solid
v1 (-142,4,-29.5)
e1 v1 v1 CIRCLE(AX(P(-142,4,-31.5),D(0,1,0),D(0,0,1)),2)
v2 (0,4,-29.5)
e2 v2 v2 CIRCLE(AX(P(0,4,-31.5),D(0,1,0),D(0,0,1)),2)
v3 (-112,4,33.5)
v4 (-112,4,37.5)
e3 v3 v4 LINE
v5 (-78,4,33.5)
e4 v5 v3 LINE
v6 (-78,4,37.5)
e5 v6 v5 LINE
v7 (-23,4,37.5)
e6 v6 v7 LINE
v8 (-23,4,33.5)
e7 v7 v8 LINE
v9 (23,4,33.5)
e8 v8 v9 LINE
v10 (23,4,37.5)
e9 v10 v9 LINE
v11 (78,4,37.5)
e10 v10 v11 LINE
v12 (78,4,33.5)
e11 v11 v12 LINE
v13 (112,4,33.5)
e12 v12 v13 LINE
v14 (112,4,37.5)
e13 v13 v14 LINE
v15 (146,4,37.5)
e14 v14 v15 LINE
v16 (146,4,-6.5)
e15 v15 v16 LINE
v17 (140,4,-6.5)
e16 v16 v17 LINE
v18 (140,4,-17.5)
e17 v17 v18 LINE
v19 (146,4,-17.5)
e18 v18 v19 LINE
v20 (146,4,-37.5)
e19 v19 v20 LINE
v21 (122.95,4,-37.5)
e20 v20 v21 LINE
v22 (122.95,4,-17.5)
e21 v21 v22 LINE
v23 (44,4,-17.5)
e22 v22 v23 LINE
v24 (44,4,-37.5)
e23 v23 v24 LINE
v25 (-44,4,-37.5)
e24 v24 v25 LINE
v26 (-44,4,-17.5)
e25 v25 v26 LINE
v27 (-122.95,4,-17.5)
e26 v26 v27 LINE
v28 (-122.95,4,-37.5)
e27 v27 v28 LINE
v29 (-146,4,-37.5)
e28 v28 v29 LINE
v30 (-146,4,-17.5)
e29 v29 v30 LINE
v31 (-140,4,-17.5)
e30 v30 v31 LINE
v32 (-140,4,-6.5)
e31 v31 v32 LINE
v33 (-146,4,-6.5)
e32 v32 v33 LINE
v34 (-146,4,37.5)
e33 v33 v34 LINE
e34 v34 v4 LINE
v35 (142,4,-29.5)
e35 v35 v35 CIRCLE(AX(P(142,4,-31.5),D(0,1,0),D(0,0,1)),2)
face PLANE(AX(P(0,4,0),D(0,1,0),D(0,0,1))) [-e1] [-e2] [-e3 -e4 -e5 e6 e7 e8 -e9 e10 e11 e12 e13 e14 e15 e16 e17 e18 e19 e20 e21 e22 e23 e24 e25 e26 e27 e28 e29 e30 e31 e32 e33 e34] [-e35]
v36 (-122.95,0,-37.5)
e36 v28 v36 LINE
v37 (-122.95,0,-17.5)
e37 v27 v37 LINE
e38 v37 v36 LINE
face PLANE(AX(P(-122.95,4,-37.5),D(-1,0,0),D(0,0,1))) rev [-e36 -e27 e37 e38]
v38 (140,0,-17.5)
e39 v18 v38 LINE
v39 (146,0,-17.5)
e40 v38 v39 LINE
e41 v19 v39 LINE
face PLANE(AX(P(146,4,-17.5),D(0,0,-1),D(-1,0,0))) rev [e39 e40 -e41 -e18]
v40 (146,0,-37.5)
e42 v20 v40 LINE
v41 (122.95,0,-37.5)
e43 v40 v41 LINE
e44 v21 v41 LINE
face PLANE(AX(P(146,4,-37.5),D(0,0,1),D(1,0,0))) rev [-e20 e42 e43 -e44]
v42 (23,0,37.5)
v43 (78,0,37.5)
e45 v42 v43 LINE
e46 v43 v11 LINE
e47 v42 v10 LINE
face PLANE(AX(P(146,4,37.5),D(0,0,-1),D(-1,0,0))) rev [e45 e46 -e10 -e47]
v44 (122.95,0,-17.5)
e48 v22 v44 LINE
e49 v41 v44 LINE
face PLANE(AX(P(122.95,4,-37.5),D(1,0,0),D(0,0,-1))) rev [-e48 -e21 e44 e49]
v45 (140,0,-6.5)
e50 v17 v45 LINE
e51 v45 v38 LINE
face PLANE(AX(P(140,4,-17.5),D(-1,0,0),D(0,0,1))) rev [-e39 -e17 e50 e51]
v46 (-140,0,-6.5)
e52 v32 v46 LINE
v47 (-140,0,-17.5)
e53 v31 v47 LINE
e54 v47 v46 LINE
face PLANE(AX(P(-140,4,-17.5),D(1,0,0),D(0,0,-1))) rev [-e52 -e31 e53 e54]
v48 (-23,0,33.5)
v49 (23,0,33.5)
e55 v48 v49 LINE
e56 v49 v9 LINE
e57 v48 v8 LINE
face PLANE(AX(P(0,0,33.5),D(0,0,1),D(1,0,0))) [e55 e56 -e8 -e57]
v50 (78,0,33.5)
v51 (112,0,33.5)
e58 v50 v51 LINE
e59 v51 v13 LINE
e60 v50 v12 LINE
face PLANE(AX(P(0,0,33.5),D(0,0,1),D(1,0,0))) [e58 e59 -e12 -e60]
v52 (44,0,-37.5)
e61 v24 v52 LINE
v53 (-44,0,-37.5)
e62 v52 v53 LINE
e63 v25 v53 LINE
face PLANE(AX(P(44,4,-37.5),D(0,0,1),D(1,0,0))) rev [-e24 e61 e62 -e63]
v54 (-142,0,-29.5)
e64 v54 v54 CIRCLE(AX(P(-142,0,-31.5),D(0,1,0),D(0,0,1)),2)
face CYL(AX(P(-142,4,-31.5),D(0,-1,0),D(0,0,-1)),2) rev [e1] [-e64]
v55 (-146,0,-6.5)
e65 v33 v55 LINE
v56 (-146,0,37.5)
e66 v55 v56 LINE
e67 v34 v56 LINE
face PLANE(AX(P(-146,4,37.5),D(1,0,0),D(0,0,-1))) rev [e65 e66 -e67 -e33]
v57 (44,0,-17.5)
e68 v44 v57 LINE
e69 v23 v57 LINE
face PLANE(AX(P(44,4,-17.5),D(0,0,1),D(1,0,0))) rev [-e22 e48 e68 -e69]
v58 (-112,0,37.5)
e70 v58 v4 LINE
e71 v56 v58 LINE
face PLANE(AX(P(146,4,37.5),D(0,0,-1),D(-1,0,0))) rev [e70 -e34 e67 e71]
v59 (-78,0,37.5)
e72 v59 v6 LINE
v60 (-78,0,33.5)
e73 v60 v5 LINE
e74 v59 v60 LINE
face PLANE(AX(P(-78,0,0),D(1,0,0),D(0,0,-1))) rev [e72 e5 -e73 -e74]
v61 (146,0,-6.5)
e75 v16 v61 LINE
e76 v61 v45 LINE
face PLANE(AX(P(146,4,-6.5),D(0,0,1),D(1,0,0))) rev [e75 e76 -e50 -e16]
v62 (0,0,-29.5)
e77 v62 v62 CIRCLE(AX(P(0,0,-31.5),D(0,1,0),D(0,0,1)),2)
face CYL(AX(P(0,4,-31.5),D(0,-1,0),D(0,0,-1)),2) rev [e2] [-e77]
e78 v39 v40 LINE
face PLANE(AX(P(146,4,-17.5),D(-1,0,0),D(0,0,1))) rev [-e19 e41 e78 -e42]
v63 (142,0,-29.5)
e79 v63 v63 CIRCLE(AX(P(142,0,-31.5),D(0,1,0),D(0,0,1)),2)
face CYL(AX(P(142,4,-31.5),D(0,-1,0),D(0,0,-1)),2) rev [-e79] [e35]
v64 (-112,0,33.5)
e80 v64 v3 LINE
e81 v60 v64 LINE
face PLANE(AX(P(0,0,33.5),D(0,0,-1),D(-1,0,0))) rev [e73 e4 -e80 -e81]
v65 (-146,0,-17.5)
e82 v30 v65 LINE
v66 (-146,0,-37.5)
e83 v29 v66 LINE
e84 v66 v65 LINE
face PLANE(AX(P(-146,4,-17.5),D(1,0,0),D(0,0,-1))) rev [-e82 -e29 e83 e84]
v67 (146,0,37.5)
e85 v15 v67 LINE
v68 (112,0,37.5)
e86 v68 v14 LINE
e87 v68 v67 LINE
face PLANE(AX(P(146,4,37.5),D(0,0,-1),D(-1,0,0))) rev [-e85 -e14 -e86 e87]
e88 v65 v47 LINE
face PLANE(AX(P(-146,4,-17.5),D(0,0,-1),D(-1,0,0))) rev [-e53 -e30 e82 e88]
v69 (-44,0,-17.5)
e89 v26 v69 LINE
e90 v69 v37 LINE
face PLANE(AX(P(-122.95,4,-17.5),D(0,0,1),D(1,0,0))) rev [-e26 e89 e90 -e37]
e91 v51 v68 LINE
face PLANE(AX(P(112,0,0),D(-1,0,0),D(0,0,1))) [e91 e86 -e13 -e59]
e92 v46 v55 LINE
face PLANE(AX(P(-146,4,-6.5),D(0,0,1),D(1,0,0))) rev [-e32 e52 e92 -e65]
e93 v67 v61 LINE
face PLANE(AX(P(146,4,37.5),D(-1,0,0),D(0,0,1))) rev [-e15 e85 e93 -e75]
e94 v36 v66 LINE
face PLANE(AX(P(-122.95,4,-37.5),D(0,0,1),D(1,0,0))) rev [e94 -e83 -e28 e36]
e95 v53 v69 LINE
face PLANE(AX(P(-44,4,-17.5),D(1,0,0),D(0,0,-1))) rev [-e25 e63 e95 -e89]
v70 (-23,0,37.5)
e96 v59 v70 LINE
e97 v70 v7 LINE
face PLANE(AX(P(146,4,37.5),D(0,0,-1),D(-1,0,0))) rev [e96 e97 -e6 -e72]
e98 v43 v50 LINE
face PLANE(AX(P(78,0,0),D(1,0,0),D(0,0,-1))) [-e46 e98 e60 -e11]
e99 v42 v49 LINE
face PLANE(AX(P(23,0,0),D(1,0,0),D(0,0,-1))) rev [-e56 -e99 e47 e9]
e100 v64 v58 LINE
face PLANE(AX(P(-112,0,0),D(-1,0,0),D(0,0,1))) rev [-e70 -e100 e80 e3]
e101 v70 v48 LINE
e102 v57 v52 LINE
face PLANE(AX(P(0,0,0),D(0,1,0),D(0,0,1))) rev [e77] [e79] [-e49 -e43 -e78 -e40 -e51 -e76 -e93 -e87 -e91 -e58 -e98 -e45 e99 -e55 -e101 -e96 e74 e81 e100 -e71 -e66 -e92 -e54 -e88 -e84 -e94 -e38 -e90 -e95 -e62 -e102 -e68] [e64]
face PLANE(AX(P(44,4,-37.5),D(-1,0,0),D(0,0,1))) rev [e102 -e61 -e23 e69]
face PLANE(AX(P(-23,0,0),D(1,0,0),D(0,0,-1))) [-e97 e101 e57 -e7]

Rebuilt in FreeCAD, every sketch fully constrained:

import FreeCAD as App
import Part
import Sketcher

V = App.Vector

doc = App.newDocument("Part")
body = doc.addObject("PartDesign::Body", "Body")

# Sketch on XZ plane
sketch1 = body.newObject("Sketcher::SketchObject", "Sketch")
sketch1.AttachmentSupport = (doc.getObject("XZ_Plane"), [""])
sketch1.MapMode = "FlatFace"
sketch1.addGeometry([
    Part.LineSegment(V(-146, 37.5, 0), V(146, 37.5, 0)),  # 0
    Part.LineSegment(V(146, 37.5, 0), V(146, -6.5, 0)),  # 1
    Part.LineSegment(V(146, -6.5, 0), V(140, -6.5, 0)),  # 2
    Part.LineSegment(V(140, -6.5, 0), V(140, -17.5, 0)),  # 3
    Part.LineSegment(V(140, -17.5, 0), V(146, -17.5, 0)),  # 4
    Part.LineSegment(V(146, -17.5, 0), V(146, -37.5, 0)),  # 5
    Part.LineSegment(V(146, -37.5, 0), V(123, -37.5, 0)),  # 6
    Part.LineSegment(V(123, -37.5, 0), V(123, -17.5, 0)),  # 7
    Part.LineSegment(V(123, -17.5, 0), V(44, -17.5, 0)),  # 8
    Part.LineSegment(V(44, -17.5, 0), V(44, -37.5, 0)),  # 9
    Part.LineSegment(V(44, -37.5, 0), V(-44, -37.5, 0)),  # 10
    Part.LineSegment(V(-44, -37.5, 0), V(-44, -17.5, 0)),  # 11
    Part.LineSegment(V(-44, -17.5, 0), V(-123, -17.5, 0)),  # 12
    Part.LineSegment(V(-123, -17.5, 0), V(-123, -37.5, 0)),  # 13
    Part.LineSegment(V(-123, -37.5, 0), V(-146, -37.5, 0)),  # 14
    Part.LineSegment(V(-146, -37.5, 0), V(-146, -17.5, 0)),  # 15
    Part.LineSegment(V(-146, -17.5, 0), V(-140, -17.5, 0)),  # 16
    Part.LineSegment(V(-140, -17.5, 0), V(-140, -6.5, 0)),  # 17
    Part.LineSegment(V(-140, -6.5, 0), V(-146, -6.5, 0)),  # 18
    Part.LineSegment(V(-146, -6.5, 0), V(-146, 37.5, 0)),  # 19
    Part.Circle(V(142, -31.5, 0), V(0, 0, 1), 2),  # 20
    Part.Circle(V(0, -31.5, 0), V(0, 0, 1), 2),  # 21
    Part.Circle(V(-142, -31.5, 0), V(0, 0, 1), 2),  # 22
], False)
sketch1.addConstraint([
    Sketcher.Constraint("Coincident", 0, 2, 1, 1),
    Sketcher.Constraint("Coincident", 1, 2, 2, 1),
    Sketcher.Constraint("Coincident", 2, 2, 3, 1),
    Sketcher.Constraint("Coincident", 3, 2, 4, 1),
    Sketcher.Constraint("Coincident", 4, 2, 5, 1),
    Sketcher.Constraint("Coincident", 5, 2, 6, 1),
    Sketcher.Constraint("Coincident", 6, 2, 7, 1),
    Sketcher.Constraint("Coincident", 7, 2, 8, 1),
    Sketcher.Constraint("Coincident", 8, 2, 9, 1),
    Sketcher.Constraint("Coincident", 9, 2, 10, 1),
    Sketcher.Constraint("Coincident", 10, 2, 11, 1),
    Sketcher.Constraint("Coincident", 11, 2, 12, 1),
    Sketcher.Constraint("Coincident", 12, 2, 13, 1),
    Sketcher.Constraint("Coincident", 13, 2, 14, 1),
    Sketcher.Constraint("Coincident", 14, 2, 15, 1),
    Sketcher.Constraint("Coincident", 15, 2, 16, 1),
    Sketcher.Constraint("Coincident", 16, 2, 17, 1),
    Sketcher.Constraint("Coincident", 17, 2, 18, 1),
    Sketcher.Constraint("Coincident", 18, 2, 19, 1),
    Sketcher.Constraint("Coincident", 19, 2, 0, 1),
    Sketcher.Constraint("Horizontal", 0),
    Sketcher.Constraint("Vertical", 1),
    Sketcher.Constraint("Horizontal", 2),
    Sketcher.Constraint("Vertical", 3),
    Sketcher.Constraint("Horizontal", 4),
    Sketcher.Constraint("Vertical", 5),
    Sketcher.Constraint("Horizontal", 6),
    Sketcher.Constraint("Vertical", 7),
    Sketcher.Constraint("Horizontal", 8),
    Sketcher.Constraint("Vertical", 9),
    Sketcher.Constraint("Horizontal", 10),
    Sketcher.Constraint("Vertical", 11),
    Sketcher.Constraint("Horizontal", 12),
    Sketcher.Constraint("Vertical", 13),
    Sketcher.Constraint("Horizontal", 14),
    Sketcher.Constraint("Vertical", 15),
    Sketcher.Constraint("Horizontal", 16),
    Sketcher.Constraint("Vertical", 17),
    Sketcher.Constraint("Horizontal", 18),
    Sketcher.Constraint("Vertical", 19),
    Sketcher.Constraint("Equal", 20, 21),
    Sketcher.Constraint("Equal", 21, 22),
    Sketcher.Constraint("Symmetric", 0, 2, 14, 2, -1, 1),
    Sketcher.Constraint("Symmetric", 5, 2, 19, 2, -1, 1),
    Sketcher.Constraint("Symmetric", 20, 3, 22, 3, -2),
    Sketcher.Constraint("Symmetric", 8, 2, 11, 2, -2),
    Sketcher.Constraint("Symmetric", 4, 2, 15, 2, -2),
    Sketcher.Constraint("Symmetric", 2, 2, 17, 2, -2),
    Sketcher.Constraint("PointOnObject", 21, 3, -2),
    Sketcher.Constraint("Horizontal", 20, 3, 21, 3),
    Sketcher.Constraint("Horizontal", 4, 2, 7, 2),
    Sketcher.Constraint("Horizontal", 6, 2, 9, 2),
    Sketcher.Constraint("Equal", 8, 12),
    Sketcher.Constraint("Diameter", 20, 4.0),
    Sketcher.Constraint("DistanceX", 0, 1, 0, 2, 292.0),
    Sketcher.Constraint("DistanceX", 2, 2, 2, 1, 6.0),
    Sketcher.Constraint("DistanceX", 10, 2, 10, 1, 88.0),
    Sketcher.Constraint("DistanceY", 1, 2, 1, 1, 44.0),
    Sketcher.Constraint("DistanceY", 3, 2, 3, 1, 11.0),
    Sketcher.Constraint("DistanceY", 5, 2, 5, 1, 20.0),
    Sketcher.Constraint("DistanceX", -1, 1, 20, 3, 142.0),
    Sketcher.Constraint("DistanceY", 20, 3, 0, 2, 69.0),
    Sketcher.Constraint("DistanceX", 6, 2, 6, 1, 23.05),
])
pad1 = body.newObject("PartDesign::Pad", "Pad")
pad1.Profile = sketch1
pad1.Length = 4
pad1.Reversed = True

# Sketch on XZ plane
sketch2 = body.newObject("Sketcher::SketchObject", "Sketch001")
sketch2.AttachmentSupport = (doc.getObject("XZ_Plane"), [""])
sketch2.MapMode = "FlatFace"
sketch2.AttachmentOffset = App.Placement(V(0, 0, -4), App.Rotation())
sketch2.addGeometry([
    Part.LineSegment(V(78, 33.5, 0), V(78, 37.5, 0)),  # 0
    Part.LineSegment(V(78, 37.5, 0), V(112, 37.5, 0)),  # 1
    Part.LineSegment(V(112, 37.5, 0), V(112, 33.5, 0)),  # 2
    Part.LineSegment(V(112, 33.5, 0), V(78, 33.5, 0)),  # 3
    Part.LineSegment(V(-23, 33.5, 0), V(-23, 37.5, 0)),  # 4
    Part.LineSegment(V(-23, 37.5, 0), V(23, 37.5, 0)),  # 5
    Part.LineSegment(V(23, 37.5, 0), V(23, 33.5, 0)),  # 6
    Part.LineSegment(V(23, 33.5, 0), V(-23, 33.5, 0)),  # 7
    Part.LineSegment(V(-112, 33.5, 0), V(-112, 37.5, 0)),  # 8
    Part.LineSegment(V(-112, 37.5, 0), V(-78, 37.5, 0)),  # 9
    Part.LineSegment(V(-78, 37.5, 0), V(-78, 33.5, 0)),  # 10
    Part.LineSegment(V(-78, 33.5, 0), V(-112, 33.5, 0)),  # 11
], False)
sketch2.addConstraint([
    Sketcher.Constraint("Coincident", 0, 2, 1, 1),
    Sketcher.Constraint("Coincident", 1, 2, 2, 1),
    Sketcher.Constraint("Coincident", 2, 2, 3, 1),
    Sketcher.Constraint("Coincident", 3, 2, 0, 1),
    Sketcher.Constraint("Coincident", 4, 2, 5, 1),
    Sketcher.Constraint("Coincident", 5, 2, 6, 1),
    Sketcher.Constraint("Coincident", 6, 2, 7, 1),
    Sketcher.Constraint("Coincident", 7, 2, 4, 1),
    Sketcher.Constraint("Coincident", 8, 2, 9, 1),
    Sketcher.Constraint("Coincident", 9, 2, 10, 1),
    Sketcher.Constraint("Coincident", 10, 2, 11, 1),
    Sketcher.Constraint("Coincident", 11, 2, 8, 1),
    Sketcher.Constraint("Vertical", 0),
    Sketcher.Constraint("Horizontal", 1),
    Sketcher.Constraint("Vertical", 2),
    Sketcher.Constraint("Horizontal", 3),
    Sketcher.Constraint("Vertical", 4),
    Sketcher.Constraint("Horizontal", 5),
    Sketcher.Constraint("Vertical", 6),
    Sketcher.Constraint("Horizontal", 7),
    Sketcher.Constraint("Vertical", 8),
    Sketcher.Constraint("Horizontal", 9),
    Sketcher.Constraint("Vertical", 10),
    Sketcher.Constraint("Horizontal", 11),
    Sketcher.Constraint("Symmetric", 1, 2, 8, 2, -2),
    Sketcher.Constraint("Symmetric", 3, 2, 10, 2, -2),
    Sketcher.Constraint("Horizontal", 1, 2, 4, 2),
    Sketcher.Constraint("Horizontal", 3, 2, 6, 2),
    Sketcher.Constraint("DistanceX", 1, 1, 1, 2, 34.0),
    Sketcher.Constraint("DistanceX", 5, 1, 5, 2, 46.0),
    Sketcher.Constraint("DistanceY", 0, 1, 0, 2, 4.0),
    Sketcher.Constraint("DistanceX", -1, 1, 0, 2, 78.0),
    Sketcher.Constraint("DistanceX", 4, 2, -1, 1, 23.0),
    Sketcher.Constraint("DistanceY", -1, 1, 0, 2, 37.5),
])
pocket1 = body.newObject("PartDesign::Pocket", "Pocket")
pocket1.Profile = sketch2
pocket1.Type = "ThroughAll"
pocket1.Reversed = True

doc.recompute()
